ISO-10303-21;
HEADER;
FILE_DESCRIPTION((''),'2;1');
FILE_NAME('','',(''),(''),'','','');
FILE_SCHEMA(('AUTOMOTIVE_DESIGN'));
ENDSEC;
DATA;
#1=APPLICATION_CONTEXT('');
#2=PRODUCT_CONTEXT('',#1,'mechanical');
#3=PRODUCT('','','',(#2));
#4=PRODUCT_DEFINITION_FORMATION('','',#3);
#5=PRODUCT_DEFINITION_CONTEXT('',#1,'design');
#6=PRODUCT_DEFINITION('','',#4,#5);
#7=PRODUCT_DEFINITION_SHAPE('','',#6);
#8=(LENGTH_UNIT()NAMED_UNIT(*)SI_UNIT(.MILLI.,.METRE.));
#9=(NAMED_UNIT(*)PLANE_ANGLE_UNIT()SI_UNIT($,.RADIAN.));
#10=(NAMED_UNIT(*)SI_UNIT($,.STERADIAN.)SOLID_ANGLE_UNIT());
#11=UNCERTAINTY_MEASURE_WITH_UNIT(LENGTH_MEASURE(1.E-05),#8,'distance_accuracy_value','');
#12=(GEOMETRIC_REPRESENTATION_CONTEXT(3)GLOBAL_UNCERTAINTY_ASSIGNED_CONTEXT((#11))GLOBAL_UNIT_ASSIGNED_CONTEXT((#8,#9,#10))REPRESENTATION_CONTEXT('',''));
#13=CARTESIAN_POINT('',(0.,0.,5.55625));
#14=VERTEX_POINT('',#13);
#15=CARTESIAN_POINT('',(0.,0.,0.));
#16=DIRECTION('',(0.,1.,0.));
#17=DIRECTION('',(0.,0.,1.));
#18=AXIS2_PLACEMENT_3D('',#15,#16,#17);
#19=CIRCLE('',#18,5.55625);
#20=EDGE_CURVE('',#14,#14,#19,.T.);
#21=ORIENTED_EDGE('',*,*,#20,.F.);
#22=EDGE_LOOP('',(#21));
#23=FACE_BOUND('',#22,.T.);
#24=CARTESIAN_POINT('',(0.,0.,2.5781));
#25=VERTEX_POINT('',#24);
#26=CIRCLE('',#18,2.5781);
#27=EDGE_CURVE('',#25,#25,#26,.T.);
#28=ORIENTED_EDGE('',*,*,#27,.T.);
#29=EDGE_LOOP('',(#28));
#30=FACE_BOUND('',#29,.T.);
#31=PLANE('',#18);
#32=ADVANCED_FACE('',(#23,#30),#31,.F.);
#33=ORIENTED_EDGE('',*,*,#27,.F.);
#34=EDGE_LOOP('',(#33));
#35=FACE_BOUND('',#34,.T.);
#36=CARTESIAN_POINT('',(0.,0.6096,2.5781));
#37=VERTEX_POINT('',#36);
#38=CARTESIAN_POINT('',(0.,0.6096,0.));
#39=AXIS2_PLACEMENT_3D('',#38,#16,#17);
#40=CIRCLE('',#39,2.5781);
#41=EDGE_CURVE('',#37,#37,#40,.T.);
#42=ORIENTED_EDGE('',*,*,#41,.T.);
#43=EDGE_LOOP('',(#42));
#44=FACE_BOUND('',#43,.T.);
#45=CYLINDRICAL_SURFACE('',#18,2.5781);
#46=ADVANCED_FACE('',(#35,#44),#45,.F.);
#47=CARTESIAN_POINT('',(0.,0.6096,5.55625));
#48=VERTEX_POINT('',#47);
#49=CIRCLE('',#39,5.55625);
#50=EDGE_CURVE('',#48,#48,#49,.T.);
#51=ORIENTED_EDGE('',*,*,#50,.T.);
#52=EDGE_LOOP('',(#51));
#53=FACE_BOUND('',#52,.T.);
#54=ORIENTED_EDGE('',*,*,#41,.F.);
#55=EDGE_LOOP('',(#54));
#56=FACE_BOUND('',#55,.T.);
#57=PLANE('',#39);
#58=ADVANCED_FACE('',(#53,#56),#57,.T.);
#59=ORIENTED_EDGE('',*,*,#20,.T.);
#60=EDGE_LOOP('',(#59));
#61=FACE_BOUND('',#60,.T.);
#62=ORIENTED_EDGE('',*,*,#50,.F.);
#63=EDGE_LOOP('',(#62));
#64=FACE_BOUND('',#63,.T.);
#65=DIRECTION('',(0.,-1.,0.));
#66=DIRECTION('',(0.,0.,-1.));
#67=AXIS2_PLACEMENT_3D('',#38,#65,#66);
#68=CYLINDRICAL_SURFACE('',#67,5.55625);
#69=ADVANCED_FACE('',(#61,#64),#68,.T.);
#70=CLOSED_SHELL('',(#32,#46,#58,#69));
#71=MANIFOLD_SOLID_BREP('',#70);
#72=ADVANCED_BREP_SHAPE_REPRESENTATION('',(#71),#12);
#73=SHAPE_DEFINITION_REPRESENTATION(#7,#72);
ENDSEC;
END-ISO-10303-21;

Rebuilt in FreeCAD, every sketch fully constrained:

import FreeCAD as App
import Part
import Sketcher
Q = App.Units.Quantity

doc = App.newDocument("Part")
body = doc.addObject("PartDesign::Body", "Body")

# Sketch on XZ plane
sketch1 = body.newObject("Sketcher::SketchObject", "Sketch")
sketch1.AttachmentSupport = (doc.getObject("XZ_Plane"), [""])
sketch1.MapMode = "FlatFace"
sketch1.addGeometry(Part.Circle(App.Vector(0, 0, 0), App.Vector(0, 0, 1), 6), False)
sketch1.addConstraint([
    Sketcher.Constraint("Coincident", 0, 3, -1, 1),
    Sketcher.Constraint("Diameter", 0, Q("0.4375 in")),
])
pad1 = body.newObject("PartDesign::Pad", "Pad")
pad1.Profile = sketch1
pad1.Length = Q("0.024 in")
pad1.Reversed = True

# Sketch on XZ plane
sketch2 = body.newObject("Sketcher::SketchObject", "Sketch001")
sketch2.AttachmentSupport = (doc.getObject("XZ_Plane"), [""])
sketch2.MapMode = "FlatFace"
sketch2.AttachmentOffset = App.Placement(App.Vector(0, 0, -0.024 * 25.4), App.Rotation())
sketch2.addGeometry(Part.Circle(App.Vector(0, 0, 0), App.Vector(0, 0, 1), 2.6), False)
sketch2.addConstraint([
    Sketcher.Constraint("Coincident", 0, 3, -1, 1),
    Sketcher.Constraint("Diameter", 0, Q("0.203 in")),
])
pocket1 = body.newObject("PartDesign::Pocket", "Pocket")
pocket1.Profile = sketch2
pocket1.Type = "ThroughAll"
pocket1.Reversed = True

doc.recompute()
